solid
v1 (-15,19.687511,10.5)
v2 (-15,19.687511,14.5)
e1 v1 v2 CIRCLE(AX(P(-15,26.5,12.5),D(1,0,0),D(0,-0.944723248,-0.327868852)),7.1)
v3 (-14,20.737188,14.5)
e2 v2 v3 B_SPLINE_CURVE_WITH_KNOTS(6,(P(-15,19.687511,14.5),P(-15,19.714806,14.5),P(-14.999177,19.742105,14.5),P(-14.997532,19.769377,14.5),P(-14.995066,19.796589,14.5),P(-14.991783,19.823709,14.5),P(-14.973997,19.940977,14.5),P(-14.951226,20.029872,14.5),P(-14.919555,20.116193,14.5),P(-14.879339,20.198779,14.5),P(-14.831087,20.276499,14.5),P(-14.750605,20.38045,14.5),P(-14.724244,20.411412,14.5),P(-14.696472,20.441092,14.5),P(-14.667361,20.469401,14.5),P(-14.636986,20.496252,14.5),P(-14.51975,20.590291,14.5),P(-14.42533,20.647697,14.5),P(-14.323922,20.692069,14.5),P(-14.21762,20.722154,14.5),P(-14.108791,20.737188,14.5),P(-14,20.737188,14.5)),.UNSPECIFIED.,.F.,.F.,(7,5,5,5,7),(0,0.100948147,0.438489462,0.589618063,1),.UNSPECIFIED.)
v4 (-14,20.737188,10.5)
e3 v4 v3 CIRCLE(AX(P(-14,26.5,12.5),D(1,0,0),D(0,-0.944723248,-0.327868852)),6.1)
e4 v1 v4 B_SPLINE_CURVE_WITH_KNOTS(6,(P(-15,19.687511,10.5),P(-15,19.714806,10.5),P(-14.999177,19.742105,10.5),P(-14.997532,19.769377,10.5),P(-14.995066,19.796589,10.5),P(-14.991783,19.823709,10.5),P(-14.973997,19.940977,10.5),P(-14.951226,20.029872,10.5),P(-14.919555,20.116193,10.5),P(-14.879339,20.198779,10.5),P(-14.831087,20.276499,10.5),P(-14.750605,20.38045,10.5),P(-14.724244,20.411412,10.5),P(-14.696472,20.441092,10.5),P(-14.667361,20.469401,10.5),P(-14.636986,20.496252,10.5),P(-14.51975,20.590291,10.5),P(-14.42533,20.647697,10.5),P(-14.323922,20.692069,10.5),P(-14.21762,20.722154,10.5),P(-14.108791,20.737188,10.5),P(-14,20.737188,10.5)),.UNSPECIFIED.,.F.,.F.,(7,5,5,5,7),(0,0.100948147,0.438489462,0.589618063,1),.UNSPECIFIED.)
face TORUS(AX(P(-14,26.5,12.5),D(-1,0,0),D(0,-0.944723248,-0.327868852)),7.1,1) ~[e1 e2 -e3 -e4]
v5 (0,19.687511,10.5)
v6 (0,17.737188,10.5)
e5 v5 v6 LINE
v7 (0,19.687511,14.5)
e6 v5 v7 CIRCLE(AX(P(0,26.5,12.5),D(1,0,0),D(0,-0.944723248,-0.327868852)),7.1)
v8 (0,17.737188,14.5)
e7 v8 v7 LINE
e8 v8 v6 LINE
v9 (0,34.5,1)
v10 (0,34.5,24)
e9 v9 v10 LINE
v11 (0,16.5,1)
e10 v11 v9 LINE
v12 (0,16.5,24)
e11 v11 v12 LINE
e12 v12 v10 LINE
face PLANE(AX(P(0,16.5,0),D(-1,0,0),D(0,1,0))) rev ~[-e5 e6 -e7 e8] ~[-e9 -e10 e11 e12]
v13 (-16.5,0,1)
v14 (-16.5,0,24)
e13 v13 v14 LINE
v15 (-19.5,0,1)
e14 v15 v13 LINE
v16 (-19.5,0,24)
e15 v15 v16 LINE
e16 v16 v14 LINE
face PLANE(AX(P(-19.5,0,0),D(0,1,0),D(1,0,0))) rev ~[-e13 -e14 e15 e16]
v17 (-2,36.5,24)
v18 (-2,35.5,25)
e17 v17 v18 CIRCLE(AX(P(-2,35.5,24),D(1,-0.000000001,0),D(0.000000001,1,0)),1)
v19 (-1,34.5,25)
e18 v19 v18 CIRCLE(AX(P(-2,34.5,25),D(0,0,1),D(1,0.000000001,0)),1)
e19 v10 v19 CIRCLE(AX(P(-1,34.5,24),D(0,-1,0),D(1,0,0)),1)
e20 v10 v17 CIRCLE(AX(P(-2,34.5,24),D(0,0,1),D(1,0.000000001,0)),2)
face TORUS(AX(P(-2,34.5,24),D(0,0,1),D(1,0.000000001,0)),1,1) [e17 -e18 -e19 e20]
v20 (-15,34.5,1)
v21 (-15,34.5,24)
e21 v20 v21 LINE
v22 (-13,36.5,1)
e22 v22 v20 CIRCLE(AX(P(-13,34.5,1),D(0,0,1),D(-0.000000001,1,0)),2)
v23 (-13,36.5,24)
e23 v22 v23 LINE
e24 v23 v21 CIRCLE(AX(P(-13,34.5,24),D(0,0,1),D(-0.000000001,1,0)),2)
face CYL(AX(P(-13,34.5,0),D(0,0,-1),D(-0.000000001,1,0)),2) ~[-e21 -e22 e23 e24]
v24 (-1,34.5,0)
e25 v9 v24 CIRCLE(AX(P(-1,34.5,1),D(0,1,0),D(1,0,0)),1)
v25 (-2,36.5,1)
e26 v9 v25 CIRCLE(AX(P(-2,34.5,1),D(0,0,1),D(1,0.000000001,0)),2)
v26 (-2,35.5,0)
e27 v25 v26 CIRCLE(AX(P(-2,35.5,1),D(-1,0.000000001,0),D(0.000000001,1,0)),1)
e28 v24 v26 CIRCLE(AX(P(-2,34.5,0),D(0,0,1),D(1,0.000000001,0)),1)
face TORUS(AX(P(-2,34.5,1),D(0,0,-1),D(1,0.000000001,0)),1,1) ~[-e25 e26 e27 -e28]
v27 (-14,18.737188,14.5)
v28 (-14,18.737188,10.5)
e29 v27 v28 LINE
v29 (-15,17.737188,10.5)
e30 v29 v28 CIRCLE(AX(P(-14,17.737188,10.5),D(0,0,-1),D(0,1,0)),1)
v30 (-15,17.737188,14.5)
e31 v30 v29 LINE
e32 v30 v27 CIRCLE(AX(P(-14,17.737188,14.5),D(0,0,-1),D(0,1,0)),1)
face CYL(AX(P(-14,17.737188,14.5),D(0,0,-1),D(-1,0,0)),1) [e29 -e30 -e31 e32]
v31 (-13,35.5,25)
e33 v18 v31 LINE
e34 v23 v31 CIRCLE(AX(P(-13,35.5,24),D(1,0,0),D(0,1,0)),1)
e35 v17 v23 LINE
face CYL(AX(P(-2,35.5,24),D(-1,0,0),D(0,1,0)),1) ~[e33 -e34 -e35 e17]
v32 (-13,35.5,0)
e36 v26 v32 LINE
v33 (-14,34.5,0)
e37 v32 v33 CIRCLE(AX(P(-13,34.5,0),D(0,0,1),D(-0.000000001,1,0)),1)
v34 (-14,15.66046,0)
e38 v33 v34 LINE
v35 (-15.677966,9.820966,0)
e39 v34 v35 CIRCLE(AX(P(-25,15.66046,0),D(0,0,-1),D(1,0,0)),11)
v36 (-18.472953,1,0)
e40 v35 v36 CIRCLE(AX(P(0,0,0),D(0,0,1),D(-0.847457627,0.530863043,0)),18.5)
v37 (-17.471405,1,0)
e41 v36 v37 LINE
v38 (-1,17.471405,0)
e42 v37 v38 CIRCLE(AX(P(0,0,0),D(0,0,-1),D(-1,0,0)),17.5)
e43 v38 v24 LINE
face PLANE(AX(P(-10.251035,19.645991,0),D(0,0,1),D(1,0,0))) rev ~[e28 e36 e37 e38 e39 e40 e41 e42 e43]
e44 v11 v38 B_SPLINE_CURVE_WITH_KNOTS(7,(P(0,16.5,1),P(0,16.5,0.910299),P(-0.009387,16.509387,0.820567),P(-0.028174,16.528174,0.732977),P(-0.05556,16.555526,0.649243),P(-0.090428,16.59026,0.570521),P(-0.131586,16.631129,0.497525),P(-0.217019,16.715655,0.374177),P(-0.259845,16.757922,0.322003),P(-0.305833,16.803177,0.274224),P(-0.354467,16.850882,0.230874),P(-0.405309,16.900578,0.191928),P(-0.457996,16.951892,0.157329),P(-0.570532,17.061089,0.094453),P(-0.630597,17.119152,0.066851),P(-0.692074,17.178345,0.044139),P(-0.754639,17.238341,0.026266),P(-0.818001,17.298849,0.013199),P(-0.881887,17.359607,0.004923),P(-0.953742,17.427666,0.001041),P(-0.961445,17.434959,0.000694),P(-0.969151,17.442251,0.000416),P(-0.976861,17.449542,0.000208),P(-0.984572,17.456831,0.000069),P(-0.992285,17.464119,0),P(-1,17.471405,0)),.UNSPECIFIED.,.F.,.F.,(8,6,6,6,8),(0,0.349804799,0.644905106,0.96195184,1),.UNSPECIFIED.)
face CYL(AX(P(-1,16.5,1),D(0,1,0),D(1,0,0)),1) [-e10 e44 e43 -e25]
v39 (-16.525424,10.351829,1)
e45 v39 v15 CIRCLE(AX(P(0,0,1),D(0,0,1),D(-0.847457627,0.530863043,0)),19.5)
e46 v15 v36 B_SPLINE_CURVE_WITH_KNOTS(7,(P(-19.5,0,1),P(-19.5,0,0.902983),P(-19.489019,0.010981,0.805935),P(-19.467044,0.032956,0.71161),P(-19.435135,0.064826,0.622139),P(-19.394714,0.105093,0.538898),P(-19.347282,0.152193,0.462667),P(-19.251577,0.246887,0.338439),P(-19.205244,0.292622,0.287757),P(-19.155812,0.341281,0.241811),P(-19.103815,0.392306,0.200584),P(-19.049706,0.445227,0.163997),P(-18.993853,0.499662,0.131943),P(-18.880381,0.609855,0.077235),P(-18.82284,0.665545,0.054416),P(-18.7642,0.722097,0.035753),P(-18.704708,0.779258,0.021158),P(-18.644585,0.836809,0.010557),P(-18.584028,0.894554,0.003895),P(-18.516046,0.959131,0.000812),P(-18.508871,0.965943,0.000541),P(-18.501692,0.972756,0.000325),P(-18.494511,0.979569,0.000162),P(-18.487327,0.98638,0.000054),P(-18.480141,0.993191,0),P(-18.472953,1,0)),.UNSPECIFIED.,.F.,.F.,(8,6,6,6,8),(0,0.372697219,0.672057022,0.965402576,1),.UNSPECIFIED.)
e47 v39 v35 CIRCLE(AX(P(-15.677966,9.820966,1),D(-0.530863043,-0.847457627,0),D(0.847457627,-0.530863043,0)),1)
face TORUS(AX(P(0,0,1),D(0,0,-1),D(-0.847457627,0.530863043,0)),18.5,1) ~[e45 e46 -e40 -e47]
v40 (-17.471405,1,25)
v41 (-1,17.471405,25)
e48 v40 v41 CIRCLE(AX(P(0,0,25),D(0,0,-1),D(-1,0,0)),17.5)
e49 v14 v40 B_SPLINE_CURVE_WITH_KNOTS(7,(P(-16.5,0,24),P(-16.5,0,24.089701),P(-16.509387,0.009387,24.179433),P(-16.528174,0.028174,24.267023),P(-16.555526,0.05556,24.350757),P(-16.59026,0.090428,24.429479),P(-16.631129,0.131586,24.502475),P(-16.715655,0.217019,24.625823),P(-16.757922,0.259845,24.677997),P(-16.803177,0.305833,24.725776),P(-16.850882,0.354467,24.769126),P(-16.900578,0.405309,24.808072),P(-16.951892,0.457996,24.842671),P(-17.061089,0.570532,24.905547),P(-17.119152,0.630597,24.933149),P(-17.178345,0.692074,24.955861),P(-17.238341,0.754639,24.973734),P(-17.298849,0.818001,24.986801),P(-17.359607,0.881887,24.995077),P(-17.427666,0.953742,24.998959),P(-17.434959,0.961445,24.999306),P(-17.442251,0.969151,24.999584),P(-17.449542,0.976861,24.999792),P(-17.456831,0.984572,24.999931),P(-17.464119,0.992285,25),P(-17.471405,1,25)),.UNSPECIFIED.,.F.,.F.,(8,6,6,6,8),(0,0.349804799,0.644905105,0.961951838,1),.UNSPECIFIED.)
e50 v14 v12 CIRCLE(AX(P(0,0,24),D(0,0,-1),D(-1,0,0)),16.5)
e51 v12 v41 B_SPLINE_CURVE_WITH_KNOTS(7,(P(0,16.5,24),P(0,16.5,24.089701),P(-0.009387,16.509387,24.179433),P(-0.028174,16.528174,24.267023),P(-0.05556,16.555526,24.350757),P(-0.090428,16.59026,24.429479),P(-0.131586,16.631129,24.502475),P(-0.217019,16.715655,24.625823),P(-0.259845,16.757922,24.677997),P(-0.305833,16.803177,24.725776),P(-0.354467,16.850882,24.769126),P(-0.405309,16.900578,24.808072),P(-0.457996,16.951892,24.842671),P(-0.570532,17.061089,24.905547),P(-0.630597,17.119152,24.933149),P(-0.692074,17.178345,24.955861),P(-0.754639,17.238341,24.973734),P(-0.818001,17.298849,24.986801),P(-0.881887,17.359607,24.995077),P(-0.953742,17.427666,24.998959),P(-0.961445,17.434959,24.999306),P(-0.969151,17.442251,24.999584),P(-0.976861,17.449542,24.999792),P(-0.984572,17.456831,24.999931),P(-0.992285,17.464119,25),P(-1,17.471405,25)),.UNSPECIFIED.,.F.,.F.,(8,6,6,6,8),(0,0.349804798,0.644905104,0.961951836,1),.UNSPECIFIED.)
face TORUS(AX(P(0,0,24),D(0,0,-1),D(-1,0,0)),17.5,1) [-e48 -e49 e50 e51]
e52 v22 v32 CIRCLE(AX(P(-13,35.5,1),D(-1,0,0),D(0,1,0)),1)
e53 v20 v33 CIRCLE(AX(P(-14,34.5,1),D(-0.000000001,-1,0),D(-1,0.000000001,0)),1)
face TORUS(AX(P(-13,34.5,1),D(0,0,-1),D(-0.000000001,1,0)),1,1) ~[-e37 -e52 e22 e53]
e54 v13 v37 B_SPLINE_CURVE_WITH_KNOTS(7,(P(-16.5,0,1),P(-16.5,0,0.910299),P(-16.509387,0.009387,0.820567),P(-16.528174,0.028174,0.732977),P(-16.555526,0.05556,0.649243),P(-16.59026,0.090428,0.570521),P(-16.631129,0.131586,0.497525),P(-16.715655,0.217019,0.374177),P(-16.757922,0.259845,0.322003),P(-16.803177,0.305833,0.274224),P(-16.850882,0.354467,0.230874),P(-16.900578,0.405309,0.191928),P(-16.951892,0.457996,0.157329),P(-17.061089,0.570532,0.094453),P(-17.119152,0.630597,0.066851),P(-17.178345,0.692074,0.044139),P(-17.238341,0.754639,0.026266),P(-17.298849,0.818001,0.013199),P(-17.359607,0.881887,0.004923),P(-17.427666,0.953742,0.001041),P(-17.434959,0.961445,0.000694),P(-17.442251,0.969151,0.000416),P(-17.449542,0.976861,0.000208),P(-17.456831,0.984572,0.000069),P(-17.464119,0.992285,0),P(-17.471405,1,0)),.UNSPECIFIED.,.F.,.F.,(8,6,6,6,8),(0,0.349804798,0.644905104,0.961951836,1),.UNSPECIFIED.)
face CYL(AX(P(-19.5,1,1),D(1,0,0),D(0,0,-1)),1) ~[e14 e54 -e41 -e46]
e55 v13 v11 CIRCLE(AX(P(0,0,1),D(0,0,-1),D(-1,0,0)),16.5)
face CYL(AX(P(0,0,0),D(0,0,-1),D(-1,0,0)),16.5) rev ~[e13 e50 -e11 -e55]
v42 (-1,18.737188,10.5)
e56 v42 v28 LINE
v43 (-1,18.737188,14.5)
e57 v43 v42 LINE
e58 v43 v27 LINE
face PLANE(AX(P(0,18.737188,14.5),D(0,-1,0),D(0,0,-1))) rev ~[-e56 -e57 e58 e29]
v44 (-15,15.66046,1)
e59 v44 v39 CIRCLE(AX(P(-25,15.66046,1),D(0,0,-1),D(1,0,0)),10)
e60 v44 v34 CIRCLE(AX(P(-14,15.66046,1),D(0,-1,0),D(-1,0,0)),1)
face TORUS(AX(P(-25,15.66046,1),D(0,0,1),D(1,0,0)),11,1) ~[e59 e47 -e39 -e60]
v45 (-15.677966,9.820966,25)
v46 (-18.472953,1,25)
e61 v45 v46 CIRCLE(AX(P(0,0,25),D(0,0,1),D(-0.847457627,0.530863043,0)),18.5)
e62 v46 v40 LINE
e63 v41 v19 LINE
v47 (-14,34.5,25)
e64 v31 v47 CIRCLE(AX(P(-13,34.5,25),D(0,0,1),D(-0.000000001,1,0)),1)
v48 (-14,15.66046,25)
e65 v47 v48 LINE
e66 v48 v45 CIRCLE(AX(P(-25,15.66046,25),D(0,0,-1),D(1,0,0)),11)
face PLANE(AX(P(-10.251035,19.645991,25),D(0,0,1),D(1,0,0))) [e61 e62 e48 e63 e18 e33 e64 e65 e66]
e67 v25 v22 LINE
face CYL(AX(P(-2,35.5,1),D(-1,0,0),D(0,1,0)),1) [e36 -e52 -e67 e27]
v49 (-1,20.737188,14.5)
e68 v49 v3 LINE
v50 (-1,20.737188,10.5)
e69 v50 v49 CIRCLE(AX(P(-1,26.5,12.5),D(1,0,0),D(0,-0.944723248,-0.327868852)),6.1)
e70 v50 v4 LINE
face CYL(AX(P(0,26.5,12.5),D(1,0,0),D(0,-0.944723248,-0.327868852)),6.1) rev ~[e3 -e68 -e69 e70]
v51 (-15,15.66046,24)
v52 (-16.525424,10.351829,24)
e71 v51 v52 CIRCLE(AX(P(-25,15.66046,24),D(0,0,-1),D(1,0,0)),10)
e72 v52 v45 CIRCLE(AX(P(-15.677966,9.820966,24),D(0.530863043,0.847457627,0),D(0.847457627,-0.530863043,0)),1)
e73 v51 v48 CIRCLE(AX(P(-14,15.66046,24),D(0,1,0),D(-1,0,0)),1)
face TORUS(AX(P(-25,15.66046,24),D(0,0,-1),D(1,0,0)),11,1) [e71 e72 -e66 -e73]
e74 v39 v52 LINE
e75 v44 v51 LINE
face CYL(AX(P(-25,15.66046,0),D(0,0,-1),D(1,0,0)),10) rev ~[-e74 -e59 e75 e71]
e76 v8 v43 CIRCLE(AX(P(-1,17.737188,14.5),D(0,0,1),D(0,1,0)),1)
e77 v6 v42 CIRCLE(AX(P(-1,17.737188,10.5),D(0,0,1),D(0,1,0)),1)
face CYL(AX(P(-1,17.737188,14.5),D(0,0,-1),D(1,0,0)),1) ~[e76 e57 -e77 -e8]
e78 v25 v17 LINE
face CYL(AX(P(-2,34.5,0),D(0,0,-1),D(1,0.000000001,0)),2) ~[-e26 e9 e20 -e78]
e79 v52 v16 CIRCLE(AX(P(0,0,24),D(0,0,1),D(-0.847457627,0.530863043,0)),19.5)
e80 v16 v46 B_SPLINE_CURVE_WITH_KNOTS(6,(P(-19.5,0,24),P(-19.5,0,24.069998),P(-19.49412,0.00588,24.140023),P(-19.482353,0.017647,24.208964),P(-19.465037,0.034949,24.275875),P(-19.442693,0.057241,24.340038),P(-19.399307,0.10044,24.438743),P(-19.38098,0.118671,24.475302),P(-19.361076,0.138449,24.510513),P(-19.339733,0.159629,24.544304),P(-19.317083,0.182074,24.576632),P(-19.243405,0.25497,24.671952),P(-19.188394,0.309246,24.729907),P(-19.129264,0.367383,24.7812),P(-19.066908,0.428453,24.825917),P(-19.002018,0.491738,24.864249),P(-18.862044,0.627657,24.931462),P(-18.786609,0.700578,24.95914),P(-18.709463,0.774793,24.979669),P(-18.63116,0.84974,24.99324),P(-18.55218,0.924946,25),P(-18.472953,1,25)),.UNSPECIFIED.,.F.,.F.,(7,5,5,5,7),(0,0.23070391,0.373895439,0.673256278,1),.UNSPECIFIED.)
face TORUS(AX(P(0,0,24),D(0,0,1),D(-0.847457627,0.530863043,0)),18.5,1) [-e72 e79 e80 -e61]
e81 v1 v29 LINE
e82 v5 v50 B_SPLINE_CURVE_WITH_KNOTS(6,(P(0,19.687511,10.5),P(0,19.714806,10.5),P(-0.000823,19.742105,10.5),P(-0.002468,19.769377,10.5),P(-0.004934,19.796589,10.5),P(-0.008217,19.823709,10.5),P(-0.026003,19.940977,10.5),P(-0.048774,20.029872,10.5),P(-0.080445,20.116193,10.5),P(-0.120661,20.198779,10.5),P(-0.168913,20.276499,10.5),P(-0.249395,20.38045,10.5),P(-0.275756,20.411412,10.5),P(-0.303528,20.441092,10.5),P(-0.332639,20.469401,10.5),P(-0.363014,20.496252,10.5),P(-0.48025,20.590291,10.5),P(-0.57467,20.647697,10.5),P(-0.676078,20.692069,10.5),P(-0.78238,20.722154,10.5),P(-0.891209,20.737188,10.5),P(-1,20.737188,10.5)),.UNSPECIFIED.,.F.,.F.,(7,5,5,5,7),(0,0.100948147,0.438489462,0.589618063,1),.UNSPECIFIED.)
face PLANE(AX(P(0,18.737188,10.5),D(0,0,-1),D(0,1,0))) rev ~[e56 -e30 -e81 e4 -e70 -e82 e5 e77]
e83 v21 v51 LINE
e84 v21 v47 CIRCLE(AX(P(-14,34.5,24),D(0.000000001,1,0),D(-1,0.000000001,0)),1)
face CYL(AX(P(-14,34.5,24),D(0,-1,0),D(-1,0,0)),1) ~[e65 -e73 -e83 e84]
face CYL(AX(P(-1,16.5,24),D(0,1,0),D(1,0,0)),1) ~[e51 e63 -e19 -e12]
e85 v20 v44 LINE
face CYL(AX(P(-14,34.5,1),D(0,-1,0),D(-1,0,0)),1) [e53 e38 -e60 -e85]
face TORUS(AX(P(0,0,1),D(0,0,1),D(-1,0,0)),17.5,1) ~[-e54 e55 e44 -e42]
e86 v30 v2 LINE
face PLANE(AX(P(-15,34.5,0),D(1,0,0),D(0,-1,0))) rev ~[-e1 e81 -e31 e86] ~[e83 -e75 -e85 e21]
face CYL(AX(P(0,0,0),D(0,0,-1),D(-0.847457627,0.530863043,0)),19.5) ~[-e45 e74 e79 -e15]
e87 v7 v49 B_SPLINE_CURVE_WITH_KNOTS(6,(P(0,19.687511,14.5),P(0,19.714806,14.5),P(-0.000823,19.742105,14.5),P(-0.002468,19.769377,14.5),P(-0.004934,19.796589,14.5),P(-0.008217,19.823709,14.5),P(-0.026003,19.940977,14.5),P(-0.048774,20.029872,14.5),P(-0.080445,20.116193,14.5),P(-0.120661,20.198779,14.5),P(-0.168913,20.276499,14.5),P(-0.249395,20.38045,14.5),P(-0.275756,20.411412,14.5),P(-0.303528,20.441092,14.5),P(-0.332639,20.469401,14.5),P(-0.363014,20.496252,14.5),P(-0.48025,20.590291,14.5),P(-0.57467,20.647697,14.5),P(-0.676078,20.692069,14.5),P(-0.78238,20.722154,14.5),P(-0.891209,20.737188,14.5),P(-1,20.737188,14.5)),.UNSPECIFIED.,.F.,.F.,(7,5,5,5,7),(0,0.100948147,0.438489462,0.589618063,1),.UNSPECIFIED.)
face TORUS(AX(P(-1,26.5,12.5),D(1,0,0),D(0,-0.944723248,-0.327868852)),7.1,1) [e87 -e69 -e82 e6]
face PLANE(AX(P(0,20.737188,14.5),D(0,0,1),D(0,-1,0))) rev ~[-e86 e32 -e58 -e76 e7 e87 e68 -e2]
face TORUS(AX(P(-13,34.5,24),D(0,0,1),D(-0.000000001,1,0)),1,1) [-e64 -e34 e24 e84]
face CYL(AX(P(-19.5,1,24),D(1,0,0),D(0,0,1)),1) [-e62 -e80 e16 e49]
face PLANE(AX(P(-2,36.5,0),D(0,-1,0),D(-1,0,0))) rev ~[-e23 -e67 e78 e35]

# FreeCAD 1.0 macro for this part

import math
import FreeCAD as App
import Part
import Sketcher

V = App.Vector
Q = App.Units.Quantity


def edges_at(feature, points):
    """Names of the edges that pass closest to the given points."""
    edges = feature.Shape.Edges
    near = lambda p: min(range(len(edges)), key=lambda i: edges[i].distToShape(Part.Vertex(*p))[0])
    return sorted({f"Edge{near(p) + 1}" for p in points})

doc = App.newDocument("Part")
body = doc.addObject("PartDesign::Body", "Body")

# Sketch on XY plane
sketch1 = body.newObject("Sketcher::SketchObject", "Sketch")
sketch1.AttachmentSupport = (doc.getObject("XY_Plane"), [""])
sketch1.MapMode = "FlatFace"
sketch1.addGeometry([
    Part.LineSegment(V(-19.5, 0, 0), V(-16.5, 0, 0)),  # 0
    Part.ArcOfCircle(Part.Circle(V(0, 0, 0), V(0, 0, 1), 16.5), math.radians(90), math.radians(180)),  # 1
    Part.LineSegment(V(0, 16.5, 0), V(0, 34.5, 0)),  # 2
    Part.ArcOfCircle(Part.Circle(V(-2, 34.5, 0), V(0, 0, 1), 2), math.radians(0), math.radians(90)),  # 3
    Part.LineSegment(V(-2, 36.5, 0), V(-13, 36.5, 0)),  # 4
    Part.ArcOfCircle(Part.Circle(V(-13, 34.5, 0), V(0, 0, 1), 2), math.radians(90), math.radians(180)),  # 5
    Part.LineSegment(V(-15, 34.5, 0), V(-15, 15.7, 0)),  # 6
    Part.ArcOfCircle(Part.Circle(V(-25, 15.7, 0), V(0, 0, 1), 10), math.radians(-32), math.radians(0)),  # 7
    Part.ArcOfCircle(Part.Circle(V(0, 0, 0), V(0, 0, 1), 19.5), math.radians(148), math.radians(180)),  # 8
], False)
sketch1.addConstraint([
    Sketcher.Constraint("Coincident", 0, 2, 1, 2),
    Sketcher.Constraint("Coincident", 1, 1, 2, 1),
    Sketcher.Constraint("Tangent", 2, 2, 3, 1),
    Sketcher.Constraint("Tangent", 3, 2, 4, 1),
    Sketcher.Constraint("Tangent", 4, 2, 5, 1),
    Sketcher.Constraint("Tangent", 5, 2, 6, 1),
    Sketcher.Constraint("Tangent", 6, 2, 7, 2),
    Sketcher.Constraint("Tangent", 7, 1, 8, 1),
    Sketcher.Constraint("Coincident", 8, 2, 0, 1),
    Sketcher.Constraint("Horizontal", 0),
    Sketcher.Constraint("Vertical", 2),
    Sketcher.Constraint("Horizontal", 4),
    Sketcher.Constraint("Vertical", 6),
    Sketcher.Constraint("Coincident", 1, 3, -1, 1),
    Sketcher.Constraint("Coincident", 8, 3, -1, 1),
    Sketcher.Constraint("Equal", 3, 5),
    Sketcher.Constraint("PointOnObject", 0, 2, -1),
    Sketcher.Constraint("PointOnObject", 1, 1, -2),
    Sketcher.Constraint("Radius", 3, Q("2 mm")),
    Sketcher.Constraint("Radius", 7, Q("10 mm")),
    Sketcher.Constraint("Radius", 1, Q("16.5 mm")),
    Sketcher.Constraint("Radius", 8, Q("19.5 mm")),
    Sketcher.Constraint("DistanceX", 4, 2, 4, 1, Q("11 mm")),
    Sketcher.Constraint("DistanceY", 2, 1, 2, 2, Q("18 mm")),
])
pad1 = body.newObject("PartDesign::Pad", "Pad")
pad1.Profile = sketch1
pad1.Length = 25

# Sketch on YZ plane
sketch2 = body.newObject("Sketcher::SketchObject", "Sketch001")
sketch2.AttachmentSupport = (doc.getObject("YZ_Plane"), [""])
sketch2.MapMode = "FlatFace"
sketch2.addGeometry([
    Part.LineSegment(V(18.7, 14.5, 0), V(18.7, 10.5, 0)),
    Part.LineSegment(V(18.7, 10.5, 0), V(20.7, 10.5, 0)),
    Part.ArcOfCircle(Part.Circle(V(26.5, 12.5, 0), V(0, 0, 1), 6.1), math.radians(-161), math.radians(161)),
    Part.LineSegment(V(20.7, 14.5, 0), V(18.7, 14.5, 0)),
], False)
sketch2.addConstraint([
    Sketcher.Constraint("Coincident", 0, 2, 1, 1),
    Sketcher.Constraint("Coincident", 1, 2, 2, 1),
    Sketcher.Constraint("Coincident", 2, 2, 3, 1),
    Sketcher.Constraint("Coincident", 3, 2, 0, 1),
    Sketcher.Constraint("Vertical", 0),
    Sketcher.Constraint("Horizontal", 1),
    Sketcher.Constraint("Horizontal", 3),
    Sketcher.Constraint("Vertical", 1, 2, 2, 2),
    Sketcher.Constraint("Radius", 2, Q("6.1 mm")),
    Sketcher.Constraint("DistanceX", 1, 1, 1, 2, Q("2 mm")),
    Sketcher.Constraint("DistanceY", 0, 2, 0, 1, Q("4 mm")),
    Sketcher.Constraint("DistanceX", -1, 1, 2, 3, Q("26.5 mm")),
    Sketcher.Constraint("DistanceY", -1, 1, 2, 3, Q("12.5 mm")),
])
pocket1 = body.newObject("PartDesign::Pocket", "Pocket")
pocket1.Profile = sketch2
pocket1.Type = "ThroughAll"
doc.recompute()

fillet = body.newObject("PartDesign::Fillet", "Fillet")
fillet.Base = (pocket1, edges_at(pocket1, [(-15, 18.737, 12.5), (0, 18.737, 12.5)]))
fillet.Radius = 1
doc.recompute()

fillet2 = body.newObject("PartDesign::Fillet", "Fillet001")
fillet2.Base = (fillet, edges_at(fillet, [(-15, 32.6, 12.5), (0, 32.6, 12.5)]))
fillet2.Radius = 1
doc.recompute()

fillet3 = body.newObject("PartDesign::Fillet", "Fillet002")
fillet3.Base = (fillet2, edges_at(fillet2, [
    (-11.667, 11.667, 25),
    (-0.586, 35.914, 0),
    (0, 25.5, 0),
    (-11.667, 11.667, 0),
    (-18, 0, 0),
    (-18.742, 5.385, 0),
    (0, 25.5, 25),
    (-0.586, 35.914, 25),
    (-7.5, 36.5, 25),
    (-14.414, 35.914, 25),
    (-15, 25.08, 25),
    (-15.389, 12.899, 25),
    (-18.742, 5.385, 25),
    (-18, 0, 25),
    (-15.389, 12.899, 0),
    (-15, 25.08, 0),
    (-14.414, 35.914, 0),
    (-7.5, 36.5, 0),
]))
fillet3.Radius = 1

doc.recompute()
